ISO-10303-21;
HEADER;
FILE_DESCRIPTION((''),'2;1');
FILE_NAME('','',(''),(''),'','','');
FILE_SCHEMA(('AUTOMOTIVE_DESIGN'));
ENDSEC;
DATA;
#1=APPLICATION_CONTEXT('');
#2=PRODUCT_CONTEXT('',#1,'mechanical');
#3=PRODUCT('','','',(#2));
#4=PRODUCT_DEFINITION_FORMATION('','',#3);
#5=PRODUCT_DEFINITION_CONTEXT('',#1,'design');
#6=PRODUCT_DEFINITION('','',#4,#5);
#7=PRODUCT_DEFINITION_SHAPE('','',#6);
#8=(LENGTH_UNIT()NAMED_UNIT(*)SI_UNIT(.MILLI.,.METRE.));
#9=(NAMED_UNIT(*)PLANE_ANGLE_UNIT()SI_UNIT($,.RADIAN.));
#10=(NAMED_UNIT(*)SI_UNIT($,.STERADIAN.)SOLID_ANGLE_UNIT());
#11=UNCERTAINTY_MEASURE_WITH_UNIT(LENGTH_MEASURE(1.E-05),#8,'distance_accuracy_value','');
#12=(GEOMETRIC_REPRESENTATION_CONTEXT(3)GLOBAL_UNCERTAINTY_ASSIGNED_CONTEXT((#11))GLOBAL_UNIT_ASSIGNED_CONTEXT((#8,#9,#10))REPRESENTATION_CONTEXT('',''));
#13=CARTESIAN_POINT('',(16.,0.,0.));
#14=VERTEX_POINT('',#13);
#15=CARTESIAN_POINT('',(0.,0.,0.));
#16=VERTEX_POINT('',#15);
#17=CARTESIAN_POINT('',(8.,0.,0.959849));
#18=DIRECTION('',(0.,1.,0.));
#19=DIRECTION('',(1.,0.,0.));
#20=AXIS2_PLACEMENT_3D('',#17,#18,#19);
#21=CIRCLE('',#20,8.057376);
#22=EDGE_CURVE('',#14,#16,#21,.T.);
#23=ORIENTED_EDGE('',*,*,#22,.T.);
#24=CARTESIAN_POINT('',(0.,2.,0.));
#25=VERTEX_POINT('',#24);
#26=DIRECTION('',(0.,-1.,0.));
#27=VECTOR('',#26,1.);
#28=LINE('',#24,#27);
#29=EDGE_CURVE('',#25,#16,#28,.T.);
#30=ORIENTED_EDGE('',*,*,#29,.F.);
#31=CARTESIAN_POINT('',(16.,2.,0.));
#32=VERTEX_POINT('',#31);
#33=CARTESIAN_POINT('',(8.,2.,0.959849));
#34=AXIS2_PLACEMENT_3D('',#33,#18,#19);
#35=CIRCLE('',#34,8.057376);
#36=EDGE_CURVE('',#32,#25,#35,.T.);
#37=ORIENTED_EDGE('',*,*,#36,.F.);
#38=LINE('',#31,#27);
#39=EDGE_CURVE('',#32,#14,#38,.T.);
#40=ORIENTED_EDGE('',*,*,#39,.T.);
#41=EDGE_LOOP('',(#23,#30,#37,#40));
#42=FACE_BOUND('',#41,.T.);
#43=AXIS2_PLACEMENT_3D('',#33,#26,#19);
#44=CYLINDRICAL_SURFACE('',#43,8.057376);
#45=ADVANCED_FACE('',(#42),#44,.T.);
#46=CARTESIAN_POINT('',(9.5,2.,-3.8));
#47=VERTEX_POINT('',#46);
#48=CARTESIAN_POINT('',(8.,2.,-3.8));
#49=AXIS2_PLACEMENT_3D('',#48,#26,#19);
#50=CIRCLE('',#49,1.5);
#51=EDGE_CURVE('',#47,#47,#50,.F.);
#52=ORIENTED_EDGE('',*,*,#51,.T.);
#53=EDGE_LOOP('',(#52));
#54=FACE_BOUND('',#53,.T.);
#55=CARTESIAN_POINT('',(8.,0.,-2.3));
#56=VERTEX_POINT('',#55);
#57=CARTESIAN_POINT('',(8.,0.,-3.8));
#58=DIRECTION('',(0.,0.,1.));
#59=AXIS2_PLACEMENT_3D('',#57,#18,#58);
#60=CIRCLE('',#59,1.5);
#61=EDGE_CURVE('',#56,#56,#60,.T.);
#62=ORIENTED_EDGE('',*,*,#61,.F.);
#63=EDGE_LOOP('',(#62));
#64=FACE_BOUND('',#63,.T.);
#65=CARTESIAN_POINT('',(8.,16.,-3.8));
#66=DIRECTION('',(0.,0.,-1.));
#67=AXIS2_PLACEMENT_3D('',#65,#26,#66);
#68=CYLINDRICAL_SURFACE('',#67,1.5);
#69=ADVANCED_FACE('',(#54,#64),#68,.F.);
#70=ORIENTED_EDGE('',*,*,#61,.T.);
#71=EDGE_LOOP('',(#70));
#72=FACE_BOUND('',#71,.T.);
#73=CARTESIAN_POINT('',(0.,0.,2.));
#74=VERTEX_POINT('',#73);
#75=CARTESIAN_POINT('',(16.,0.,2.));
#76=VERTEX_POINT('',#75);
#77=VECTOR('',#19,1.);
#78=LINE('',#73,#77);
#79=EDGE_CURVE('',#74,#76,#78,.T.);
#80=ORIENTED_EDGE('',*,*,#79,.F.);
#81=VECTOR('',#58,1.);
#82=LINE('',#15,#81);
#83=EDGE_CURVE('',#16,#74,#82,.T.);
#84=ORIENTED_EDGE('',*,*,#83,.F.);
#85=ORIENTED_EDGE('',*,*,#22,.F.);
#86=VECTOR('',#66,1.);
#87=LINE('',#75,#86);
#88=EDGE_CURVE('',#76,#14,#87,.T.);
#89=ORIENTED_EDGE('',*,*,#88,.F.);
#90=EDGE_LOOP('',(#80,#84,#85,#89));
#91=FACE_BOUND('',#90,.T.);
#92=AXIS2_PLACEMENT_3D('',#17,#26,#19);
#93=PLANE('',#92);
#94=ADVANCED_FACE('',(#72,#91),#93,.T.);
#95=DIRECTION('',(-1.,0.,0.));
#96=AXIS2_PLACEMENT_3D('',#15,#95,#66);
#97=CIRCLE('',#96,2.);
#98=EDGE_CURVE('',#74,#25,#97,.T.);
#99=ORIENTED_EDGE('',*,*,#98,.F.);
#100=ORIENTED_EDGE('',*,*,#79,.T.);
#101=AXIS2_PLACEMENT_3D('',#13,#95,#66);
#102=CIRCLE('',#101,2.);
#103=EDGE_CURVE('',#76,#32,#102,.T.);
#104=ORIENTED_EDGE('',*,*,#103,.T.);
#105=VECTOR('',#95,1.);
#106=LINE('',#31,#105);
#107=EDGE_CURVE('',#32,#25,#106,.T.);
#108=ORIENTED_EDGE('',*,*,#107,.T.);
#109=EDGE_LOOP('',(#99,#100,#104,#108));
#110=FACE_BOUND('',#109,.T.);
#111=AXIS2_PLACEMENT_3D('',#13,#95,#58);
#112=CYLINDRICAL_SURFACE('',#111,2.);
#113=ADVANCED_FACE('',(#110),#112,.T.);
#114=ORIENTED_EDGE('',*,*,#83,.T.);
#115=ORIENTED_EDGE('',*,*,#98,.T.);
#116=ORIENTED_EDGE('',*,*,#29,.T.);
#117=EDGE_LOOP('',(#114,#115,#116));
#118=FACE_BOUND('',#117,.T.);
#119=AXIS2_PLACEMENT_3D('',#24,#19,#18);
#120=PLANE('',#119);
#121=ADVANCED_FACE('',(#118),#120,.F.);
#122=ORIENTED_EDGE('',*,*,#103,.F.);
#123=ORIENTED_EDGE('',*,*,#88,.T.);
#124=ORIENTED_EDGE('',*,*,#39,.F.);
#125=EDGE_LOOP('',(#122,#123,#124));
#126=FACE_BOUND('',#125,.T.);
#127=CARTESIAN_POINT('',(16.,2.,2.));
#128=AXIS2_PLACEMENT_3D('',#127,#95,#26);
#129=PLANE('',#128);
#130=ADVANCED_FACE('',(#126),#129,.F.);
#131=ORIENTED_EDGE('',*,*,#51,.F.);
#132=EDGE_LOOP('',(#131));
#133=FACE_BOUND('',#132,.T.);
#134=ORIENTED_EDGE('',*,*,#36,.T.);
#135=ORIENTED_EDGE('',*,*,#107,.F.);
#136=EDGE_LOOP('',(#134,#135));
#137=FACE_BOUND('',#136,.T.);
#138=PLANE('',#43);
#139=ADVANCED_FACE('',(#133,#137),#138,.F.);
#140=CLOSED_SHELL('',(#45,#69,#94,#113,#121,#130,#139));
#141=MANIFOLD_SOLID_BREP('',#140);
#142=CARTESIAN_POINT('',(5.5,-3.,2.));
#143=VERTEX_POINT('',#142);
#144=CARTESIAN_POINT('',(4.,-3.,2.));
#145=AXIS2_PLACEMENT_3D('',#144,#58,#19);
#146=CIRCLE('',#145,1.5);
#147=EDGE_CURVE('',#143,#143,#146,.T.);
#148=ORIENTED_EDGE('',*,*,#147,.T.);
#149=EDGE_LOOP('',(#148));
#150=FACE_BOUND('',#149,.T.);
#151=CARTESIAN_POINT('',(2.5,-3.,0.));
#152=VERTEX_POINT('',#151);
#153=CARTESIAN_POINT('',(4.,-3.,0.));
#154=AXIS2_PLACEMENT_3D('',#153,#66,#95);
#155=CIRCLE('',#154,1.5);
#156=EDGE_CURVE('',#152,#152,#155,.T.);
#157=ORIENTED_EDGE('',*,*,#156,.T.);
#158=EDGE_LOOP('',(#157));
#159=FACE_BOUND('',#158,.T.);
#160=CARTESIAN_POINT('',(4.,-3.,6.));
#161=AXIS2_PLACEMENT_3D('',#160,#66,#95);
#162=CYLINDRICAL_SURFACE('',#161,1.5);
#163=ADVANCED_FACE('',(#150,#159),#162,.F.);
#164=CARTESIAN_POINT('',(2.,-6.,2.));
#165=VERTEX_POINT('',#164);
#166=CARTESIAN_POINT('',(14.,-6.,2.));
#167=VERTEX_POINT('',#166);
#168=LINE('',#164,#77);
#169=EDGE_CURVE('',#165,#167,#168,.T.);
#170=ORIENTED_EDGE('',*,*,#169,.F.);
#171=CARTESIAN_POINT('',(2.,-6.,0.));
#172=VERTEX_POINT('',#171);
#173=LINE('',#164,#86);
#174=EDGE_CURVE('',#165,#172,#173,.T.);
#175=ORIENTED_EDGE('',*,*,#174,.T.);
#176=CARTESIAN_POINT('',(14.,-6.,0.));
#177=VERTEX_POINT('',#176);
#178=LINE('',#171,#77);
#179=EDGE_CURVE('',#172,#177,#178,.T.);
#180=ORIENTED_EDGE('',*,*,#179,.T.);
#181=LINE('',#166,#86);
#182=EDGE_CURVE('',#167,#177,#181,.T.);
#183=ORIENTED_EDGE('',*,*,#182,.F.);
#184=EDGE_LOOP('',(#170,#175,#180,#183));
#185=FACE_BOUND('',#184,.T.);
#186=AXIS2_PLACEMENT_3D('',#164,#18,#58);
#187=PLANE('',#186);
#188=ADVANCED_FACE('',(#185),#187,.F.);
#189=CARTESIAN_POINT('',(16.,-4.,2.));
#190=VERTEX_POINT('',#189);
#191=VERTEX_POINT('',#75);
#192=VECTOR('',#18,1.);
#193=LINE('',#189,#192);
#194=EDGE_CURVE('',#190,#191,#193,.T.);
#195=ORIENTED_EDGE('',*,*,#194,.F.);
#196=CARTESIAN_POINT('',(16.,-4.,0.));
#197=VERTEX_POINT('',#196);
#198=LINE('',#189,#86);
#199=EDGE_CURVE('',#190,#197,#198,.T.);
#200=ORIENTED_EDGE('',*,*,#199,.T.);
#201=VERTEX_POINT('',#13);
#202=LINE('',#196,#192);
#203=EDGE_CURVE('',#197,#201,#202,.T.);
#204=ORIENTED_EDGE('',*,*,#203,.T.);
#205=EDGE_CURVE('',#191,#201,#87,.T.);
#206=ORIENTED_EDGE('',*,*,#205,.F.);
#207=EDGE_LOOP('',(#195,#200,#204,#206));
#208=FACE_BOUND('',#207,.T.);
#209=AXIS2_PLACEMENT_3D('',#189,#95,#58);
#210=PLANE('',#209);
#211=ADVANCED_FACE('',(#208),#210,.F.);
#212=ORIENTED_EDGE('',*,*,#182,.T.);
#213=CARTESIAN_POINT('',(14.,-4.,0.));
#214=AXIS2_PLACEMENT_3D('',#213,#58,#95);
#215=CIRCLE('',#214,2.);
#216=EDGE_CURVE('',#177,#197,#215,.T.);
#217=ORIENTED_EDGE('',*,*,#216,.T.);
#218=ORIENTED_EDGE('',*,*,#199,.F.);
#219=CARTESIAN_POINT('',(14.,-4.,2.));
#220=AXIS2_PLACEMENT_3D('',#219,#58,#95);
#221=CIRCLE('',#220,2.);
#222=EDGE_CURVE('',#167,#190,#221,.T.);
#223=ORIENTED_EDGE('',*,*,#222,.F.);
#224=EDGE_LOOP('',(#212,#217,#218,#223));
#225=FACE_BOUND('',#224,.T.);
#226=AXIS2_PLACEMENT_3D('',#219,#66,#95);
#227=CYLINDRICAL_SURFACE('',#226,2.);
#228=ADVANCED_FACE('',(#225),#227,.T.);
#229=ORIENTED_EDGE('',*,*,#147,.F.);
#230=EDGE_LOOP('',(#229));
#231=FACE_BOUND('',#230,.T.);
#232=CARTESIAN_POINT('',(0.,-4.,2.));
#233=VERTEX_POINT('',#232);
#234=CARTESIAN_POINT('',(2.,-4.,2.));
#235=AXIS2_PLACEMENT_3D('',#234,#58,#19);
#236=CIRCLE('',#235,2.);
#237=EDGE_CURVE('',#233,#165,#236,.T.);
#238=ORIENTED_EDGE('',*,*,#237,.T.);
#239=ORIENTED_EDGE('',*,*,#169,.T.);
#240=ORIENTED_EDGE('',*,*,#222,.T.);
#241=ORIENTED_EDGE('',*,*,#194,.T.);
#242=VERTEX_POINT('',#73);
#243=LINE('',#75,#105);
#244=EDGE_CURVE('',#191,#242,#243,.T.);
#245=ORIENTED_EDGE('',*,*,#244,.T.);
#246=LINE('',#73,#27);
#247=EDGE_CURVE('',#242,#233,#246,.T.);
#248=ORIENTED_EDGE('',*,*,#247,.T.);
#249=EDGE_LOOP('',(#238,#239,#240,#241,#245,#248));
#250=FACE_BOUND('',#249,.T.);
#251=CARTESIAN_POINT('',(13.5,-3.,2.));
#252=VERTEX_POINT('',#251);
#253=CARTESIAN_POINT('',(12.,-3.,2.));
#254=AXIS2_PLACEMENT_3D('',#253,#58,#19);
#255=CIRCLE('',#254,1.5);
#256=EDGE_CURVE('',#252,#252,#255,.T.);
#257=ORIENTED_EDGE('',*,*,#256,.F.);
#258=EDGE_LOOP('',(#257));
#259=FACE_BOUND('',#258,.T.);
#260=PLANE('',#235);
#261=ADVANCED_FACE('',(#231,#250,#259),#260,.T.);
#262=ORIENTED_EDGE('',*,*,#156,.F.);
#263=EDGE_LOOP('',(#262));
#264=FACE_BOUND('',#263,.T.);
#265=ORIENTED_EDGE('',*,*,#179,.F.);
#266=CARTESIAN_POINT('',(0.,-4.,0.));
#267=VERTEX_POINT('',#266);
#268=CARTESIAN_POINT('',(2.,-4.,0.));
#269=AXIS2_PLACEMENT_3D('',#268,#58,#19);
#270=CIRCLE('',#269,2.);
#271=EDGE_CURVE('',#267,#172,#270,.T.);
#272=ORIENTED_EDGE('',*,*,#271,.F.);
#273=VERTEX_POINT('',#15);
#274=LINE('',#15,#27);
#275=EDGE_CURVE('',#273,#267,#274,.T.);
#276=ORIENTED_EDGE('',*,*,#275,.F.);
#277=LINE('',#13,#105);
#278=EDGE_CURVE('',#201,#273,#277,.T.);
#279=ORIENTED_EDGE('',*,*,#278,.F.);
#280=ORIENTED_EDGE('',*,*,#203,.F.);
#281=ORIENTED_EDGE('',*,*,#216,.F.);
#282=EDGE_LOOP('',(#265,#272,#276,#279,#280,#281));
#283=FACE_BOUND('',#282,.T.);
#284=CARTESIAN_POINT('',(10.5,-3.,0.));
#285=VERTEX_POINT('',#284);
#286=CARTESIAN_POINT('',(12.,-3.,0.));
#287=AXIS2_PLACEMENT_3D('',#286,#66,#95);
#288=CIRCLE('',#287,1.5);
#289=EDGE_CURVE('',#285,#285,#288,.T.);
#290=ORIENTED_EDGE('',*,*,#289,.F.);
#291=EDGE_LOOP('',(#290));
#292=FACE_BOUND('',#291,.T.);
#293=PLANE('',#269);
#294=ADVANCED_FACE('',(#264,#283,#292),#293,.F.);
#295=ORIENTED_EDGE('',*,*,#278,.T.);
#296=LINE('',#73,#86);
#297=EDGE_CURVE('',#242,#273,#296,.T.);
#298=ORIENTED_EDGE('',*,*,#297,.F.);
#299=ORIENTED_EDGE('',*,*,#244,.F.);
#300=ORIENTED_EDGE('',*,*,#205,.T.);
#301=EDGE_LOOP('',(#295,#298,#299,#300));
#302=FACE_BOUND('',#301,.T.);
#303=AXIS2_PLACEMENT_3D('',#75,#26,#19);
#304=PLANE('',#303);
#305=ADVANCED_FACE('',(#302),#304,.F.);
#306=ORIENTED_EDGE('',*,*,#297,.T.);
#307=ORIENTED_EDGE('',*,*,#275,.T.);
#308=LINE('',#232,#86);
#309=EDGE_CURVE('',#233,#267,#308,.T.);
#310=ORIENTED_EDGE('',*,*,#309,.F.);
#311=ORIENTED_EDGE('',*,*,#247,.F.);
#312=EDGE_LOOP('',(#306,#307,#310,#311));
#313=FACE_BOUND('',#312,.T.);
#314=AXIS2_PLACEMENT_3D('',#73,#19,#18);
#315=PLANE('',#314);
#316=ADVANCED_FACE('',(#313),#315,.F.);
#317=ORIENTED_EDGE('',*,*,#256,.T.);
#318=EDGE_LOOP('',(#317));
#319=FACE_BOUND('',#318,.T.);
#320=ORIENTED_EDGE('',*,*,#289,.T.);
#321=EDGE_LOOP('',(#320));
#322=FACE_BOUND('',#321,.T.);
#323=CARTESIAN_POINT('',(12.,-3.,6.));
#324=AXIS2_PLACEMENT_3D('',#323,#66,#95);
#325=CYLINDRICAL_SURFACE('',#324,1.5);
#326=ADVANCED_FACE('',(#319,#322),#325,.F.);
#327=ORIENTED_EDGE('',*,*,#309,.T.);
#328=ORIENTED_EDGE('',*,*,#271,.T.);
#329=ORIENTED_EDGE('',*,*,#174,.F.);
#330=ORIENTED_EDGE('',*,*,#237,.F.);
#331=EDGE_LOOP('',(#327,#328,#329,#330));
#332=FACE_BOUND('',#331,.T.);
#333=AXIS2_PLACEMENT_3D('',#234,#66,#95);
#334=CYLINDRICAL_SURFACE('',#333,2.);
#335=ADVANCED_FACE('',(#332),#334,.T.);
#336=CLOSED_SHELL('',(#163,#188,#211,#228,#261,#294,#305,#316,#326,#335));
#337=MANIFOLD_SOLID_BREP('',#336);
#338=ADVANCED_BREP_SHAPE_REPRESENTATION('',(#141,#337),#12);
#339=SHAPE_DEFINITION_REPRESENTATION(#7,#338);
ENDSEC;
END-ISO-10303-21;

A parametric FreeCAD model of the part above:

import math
import FreeCAD as App
import Part
import Sketcher

doc = App.newDocument("Part")
body = doc.addObject("PartDesign::Body", "Body")

# Sketch on XY plane
sketch1 = body.newObject("Sketcher::SketchObject", "Sketch")
sketch1.AttachmentSupport = (doc.getObject("XY_Plane"), [""])
sketch1.MapMode = "FlatFace"
sketch1.addGeometry([
    Part.LineSegment(App.Vector(0, 0, 0), App.Vector(0, -4, 0)),  # 0
    Part.ArcOfCircle(Part.Circle(App.Vector(2, -4, 0), App.Vector(0, 0, 1), 2), math.radians(-180), math.radians(-90)),  # 1
    Part.LineSegment(App.Vector(2, -6, 0), App.Vector(14, -6, 0)),  # 2
    Part.ArcOfCircle(Part.Circle(App.Vector(14, -4, 0), App.Vector(0, 0, 1), 2), math.radians(-90), math.radians(0)),  # 3
    Part.LineSegment(App.Vector(16, -4, 0), App.Vector(16, 0, 0)),  # 4
    Part.LineSegment(App.Vector(16, 0, 0), App.Vector(0, 0, 0)),  # 5
], False)
sketch1.addConstraint([
    Sketcher.Constraint("Tangent", 0, 2, 1, 1),
    Sketcher.Constraint("Tangent", 1, 2, 2, 1),
    Sketcher.Constraint("Tangent", 2, 2, 3, 1),
    Sketcher.Constraint("Tangent", 3, 2, 4, 1),
    Sketcher.Constraint("Coincident", 4, 2, 5, 1),
    Sketcher.Constraint("Coincident", 5, 2, 0, 1),
    Sketcher.Constraint("Vertical", 0),
    Sketcher.Constraint("Horizontal", 2),
    Sketcher.Constraint("Vertical", 4),
    Sketcher.Constraint("Horizontal", 5),
    Sketcher.Constraint("Coincident", 5, 2, -1, 1),
    Sketcher.Constraint("Equal", 1, 3),
    Sketcher.Constraint("Radius", 1, 2.0),
    Sketcher.Constraint("DistanceX", 2, 1, 2, 2, 12.0),
    Sketcher.Constraint("DistanceY", 0, 2, 0, 1, 4.0),
])
pad1 = body.newObject("PartDesign::Pad", "Pad")
pad1.Profile = sketch1
pad1.Length = 2

# Sketch on XY plane
sketch2 = body.newObject("Sketcher::SketchObject", "Sketch001")
sketch2.AttachmentSupport = (doc.getObject("XY_Plane"), [""])
sketch2.MapMode = "FlatFace"
sketch2.addGeometry([
    Part.Circle(App.Vector(12, -3, 0), App.Vector(0, 0, 1), 1.5),
    Part.Circle(App.Vector(4, -3, 0), App.Vector(0, 0, 1), 1.5),
], False)
sketch2.addConstraint([
    Sketcher.Constraint("Equal", 0, 1),
    Sketcher.Constraint("Horizontal", 0, 3, 1, 3),
    Sketcher.Constraint("Diameter", 0, 3.0),
    Sketcher.Constraint("DistanceX", -1, 1, 0, 3, 12.0),
    Sketcher.Constraint("DistanceY", 0, 3, -1, 1, 3.0),
    Sketcher.Constraint("DistanceX", -1, 1, 1, 3, 4.0),
])
pocket1 = body.newObject("PartDesign::Pocket", "Pocket")
pocket1.Profile = sketch2
pocket1.Length = 6
pocket1.Reversed = True
body2 = doc.addObject("PartDesign::Body", "Body001")

# Sketch on XZ plane
sketch3 = body2.newObject("Sketcher::SketchObject", "Sketch002")
sketch3.AttachmentSupport = (doc.getObject("XZ_Plane001"), [""])
sketch3.MapMode = "FlatFace"
sketch3.addGeometry([
    Part.LineSegment(App.Vector(0, 0, 0), App.Vector(0, 2, 0)),
    Part.LineSegment(App.Vector(0, 2, 0), App.Vector(16, 2, 0)),
    Part.LineSegment(App.Vector(16, 2, 0), App.Vector(16, 0, 0)),
    Part.ArcOfCircle(Part.Circle(App.Vector(8, 1, 0), App.Vector(0, 0, 1), 8.1), math.radians(-173), math.radians(-7)),
], False)
sketch3.addConstraint([
    Sketcher.Constraint("Coincident", 0, 2, 1, 1),
    Sketcher.Constraint("Coincident", 1, 2, 2, 1),
    Sketcher.Constraint("Coincident", 2, 2, 3, 2),
    Sketcher.Constraint("Coincident", 3, 1, 0, 1),
    Sketcher.Constraint("Vertical", 0),
    Sketcher.Constraint("Horizontal", 1),
    Sketcher.Constraint("Vertical", 2),
    Sketcher.Constraint("Coincident", 3, 1, -1, 1),
    Sketcher.Constraint("PointOnObject", 2, 2, -1),
    Sketcher.Constraint("DistanceX", 1, 1, 1, 2, 16.0),
    Sketcher.Constraint("DistanceY", 0, 1, 0, 2, 2.0),
    Sketcher.Constraint("Radius", 3, 8.057376),
])
pad2 = body2.newObject("PartDesign::Pad", "Pad001")
pad2.Profile = sketch3
pad2.Length = 2
pad2.Reversed = True

# Sketch on YZ plane
sketch4 = body2.newObject("Sketcher::SketchObject", "Sketch003")
sketch4.AttachmentSupport = (doc.getObject("YZ_Plane001"), [""])
sketch4.MapMode = "FlatFace"
sketch4.addGeometry([
    Part.LineSegment(App.Vector(2, 0, 0), App.Vector(2, 2, 0)),
    Part.LineSegment(App.Vector(2, 2, 0), App.Vector(0, 2, 0)),
    Part.ArcOfCircle(Part.Circle(App.Vector(0, 0, 0), App.Vector(0, 0, 1), 2), math.radians(0), math.radians(90)),
], False)
sketch4.addConstraint([
    Sketcher.Constraint("Coincident", 0, 2, 1, 1),
    Sketcher.Constraint("Tangent", 1, 2, 2, 2),
    Sketcher.Constraint("Tangent", 2, 1, 0, 1),
    Sketcher.Constraint("Vertical", 0),
    Sketcher.Constraint("Horizontal", 1),
    Sketcher.Constraint("Coincident", 2, 3, -1, 1),
    Sketcher.Constraint("Radius", 2, 2.0),
])
pocket2 = body2.newObject("PartDesign::Pocket", "Pocket001")
pocket2.Profile = sketch4
pocket2.Length = 16
pocket2.Reversed = True

# Sketch on XZ plane
sketch5 = body2.newObject("Sketcher::SketchObject", "Sketch004")
sketch5.AttachmentSupport = (doc.getObject("XZ_Plane001"), [""])
sketch5.MapMode = "FlatFace"
sketch5.addGeometry(Part.Circle(App.Vector(8, -3.8, 0), App.Vector(0, 0, 1), 1.5), False)
sketch5.addConstraint([
    Sketcher.Constraint("Diameter", 0, 3.0),
    Sketcher.Constraint("DistanceX", -1, 1, 0, 3, 8.0),
    Sketcher.Constraint("DistanceY", 0, 3, -1, 1, 3.8),
])
pocket3 = body2.newObject("PartDesign::Pocket", "Pocket002")
pocket3.Profile = sketch5
pocket3.Length = 16

doc.recompute()
